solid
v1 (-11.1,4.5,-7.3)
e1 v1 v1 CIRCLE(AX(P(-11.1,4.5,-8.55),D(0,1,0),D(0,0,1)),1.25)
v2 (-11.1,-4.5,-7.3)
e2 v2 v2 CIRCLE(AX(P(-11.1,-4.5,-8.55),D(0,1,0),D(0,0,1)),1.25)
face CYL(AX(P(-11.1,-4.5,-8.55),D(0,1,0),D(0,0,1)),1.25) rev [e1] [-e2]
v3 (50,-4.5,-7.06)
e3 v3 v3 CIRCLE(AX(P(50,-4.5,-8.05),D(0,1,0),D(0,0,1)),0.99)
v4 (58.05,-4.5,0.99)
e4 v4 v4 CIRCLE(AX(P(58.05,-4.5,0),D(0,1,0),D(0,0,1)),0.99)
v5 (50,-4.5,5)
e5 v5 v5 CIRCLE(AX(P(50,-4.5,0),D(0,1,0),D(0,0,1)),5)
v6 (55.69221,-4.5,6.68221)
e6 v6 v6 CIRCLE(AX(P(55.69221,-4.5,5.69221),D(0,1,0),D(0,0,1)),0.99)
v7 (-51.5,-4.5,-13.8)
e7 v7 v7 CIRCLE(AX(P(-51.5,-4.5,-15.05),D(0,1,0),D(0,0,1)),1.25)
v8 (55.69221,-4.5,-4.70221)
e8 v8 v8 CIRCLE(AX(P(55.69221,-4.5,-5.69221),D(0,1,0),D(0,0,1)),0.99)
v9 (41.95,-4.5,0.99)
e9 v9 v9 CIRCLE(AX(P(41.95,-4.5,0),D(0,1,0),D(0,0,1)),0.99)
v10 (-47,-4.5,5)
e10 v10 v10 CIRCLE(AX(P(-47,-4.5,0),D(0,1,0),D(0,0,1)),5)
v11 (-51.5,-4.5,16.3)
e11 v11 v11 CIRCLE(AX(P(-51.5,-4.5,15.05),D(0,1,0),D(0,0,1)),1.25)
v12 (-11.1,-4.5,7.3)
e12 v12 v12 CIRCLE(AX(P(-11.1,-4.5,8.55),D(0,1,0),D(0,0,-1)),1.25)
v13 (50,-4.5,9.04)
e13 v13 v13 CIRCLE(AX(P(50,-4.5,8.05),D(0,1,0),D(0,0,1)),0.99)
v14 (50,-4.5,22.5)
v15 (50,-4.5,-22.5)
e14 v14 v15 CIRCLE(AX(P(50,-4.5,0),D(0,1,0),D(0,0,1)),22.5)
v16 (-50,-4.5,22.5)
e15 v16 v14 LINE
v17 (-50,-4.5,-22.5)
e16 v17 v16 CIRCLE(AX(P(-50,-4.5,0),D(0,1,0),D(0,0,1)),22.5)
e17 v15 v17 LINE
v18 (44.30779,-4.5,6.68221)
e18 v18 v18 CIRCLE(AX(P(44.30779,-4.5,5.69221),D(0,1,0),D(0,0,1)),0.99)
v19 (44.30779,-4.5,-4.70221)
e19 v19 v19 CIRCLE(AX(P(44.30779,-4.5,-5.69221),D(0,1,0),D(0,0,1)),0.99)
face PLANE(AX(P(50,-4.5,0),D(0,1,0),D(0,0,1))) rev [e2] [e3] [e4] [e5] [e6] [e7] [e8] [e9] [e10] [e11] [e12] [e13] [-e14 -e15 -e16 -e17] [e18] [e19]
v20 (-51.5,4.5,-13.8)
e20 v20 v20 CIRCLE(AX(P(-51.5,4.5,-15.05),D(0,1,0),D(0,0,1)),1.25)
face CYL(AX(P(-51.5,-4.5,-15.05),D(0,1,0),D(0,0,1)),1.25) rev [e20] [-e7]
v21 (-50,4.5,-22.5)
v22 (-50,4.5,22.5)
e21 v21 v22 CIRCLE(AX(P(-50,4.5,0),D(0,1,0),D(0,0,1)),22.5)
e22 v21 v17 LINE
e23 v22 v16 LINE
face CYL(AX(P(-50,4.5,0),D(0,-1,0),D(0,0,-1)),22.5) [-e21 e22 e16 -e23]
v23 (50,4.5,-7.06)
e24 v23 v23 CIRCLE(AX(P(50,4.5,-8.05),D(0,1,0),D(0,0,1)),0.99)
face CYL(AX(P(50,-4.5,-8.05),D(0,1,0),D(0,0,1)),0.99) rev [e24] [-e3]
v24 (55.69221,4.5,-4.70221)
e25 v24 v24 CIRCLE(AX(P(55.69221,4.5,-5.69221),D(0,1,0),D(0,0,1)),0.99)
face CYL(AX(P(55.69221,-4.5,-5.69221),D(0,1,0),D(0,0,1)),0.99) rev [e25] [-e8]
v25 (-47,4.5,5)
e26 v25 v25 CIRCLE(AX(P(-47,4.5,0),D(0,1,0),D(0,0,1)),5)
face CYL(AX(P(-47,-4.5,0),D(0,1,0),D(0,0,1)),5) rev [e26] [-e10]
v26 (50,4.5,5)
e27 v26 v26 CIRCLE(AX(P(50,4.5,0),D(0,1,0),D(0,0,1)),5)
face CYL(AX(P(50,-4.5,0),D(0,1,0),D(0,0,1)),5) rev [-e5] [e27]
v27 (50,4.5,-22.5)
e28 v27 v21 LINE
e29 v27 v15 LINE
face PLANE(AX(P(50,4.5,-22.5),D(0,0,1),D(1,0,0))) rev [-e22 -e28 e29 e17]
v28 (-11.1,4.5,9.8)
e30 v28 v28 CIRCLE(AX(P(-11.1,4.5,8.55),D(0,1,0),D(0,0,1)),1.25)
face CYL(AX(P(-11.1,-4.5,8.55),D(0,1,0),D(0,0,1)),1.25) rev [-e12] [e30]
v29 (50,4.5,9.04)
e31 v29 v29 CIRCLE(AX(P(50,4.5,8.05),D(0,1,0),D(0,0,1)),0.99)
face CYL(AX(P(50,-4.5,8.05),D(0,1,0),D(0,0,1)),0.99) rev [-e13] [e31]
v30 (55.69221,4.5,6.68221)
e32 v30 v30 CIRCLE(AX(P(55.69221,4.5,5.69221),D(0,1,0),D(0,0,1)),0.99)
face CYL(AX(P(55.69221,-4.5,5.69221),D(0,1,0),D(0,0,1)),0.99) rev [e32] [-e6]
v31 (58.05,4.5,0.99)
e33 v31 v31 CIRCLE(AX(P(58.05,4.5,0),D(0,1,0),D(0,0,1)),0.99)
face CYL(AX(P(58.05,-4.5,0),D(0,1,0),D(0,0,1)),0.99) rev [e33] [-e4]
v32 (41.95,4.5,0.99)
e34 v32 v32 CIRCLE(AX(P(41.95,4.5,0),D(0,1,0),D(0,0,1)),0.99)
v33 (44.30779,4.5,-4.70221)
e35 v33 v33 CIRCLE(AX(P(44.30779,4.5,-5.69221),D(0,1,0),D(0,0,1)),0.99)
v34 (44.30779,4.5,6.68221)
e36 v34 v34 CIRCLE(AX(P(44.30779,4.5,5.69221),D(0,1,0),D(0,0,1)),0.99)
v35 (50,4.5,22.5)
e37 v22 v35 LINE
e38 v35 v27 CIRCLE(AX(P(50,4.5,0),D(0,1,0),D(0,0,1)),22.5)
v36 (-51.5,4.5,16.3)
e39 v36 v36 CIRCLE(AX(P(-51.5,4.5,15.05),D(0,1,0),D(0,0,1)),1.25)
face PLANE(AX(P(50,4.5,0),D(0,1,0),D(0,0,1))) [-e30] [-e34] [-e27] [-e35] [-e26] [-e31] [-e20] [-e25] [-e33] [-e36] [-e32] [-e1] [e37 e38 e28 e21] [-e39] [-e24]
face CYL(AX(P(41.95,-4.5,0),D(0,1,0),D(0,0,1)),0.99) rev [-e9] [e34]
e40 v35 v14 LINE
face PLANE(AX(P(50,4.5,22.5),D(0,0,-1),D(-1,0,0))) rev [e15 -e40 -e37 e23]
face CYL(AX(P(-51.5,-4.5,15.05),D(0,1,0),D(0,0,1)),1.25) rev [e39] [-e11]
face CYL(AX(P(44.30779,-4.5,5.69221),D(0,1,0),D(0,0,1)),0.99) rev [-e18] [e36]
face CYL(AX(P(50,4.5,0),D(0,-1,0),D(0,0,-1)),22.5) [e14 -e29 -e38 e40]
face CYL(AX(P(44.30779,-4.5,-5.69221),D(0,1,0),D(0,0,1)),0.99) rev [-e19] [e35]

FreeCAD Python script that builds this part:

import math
import FreeCAD as App
import Part
import Sketcher
Q = App.Units.Quantity

doc = App.newDocument("Part")
params = doc.addObject("Spreadsheet::Sheet", "Params")
for row, (alias, value) in enumerate([
    ("sketch1_radius", "22.5 mm"),
    ("sketch1_width", "100 mm"),
    ("pad1_length", "9 mm"),
    ("sketch2_diameter", "1.98 mm"),
    ("sketch3_diameter", "10 mm"),
    ("sketch4_diameter", "10 mm"),
    ("sketch4_diameter2", "2.5 mm"),
], start=1):
    params.set(f"A{row}", alias)
    params.set(f"B{row}", "=" + value)
    params.setAlias(f"B{row}", alias)

body = doc.addObject("PartDesign::Body", "Body")

# Sketch on XZ plane
sketch1 = body.newObject("Sketcher::SketchObject", "Sketch")
sketch1.AttachmentSupport = (doc.getObject("XZ_Plane"), [""])
sketch1.MapMode = "FlatFace"
sketch1.addGeometry(Part.LineSegment(App.Vector(-50, 22, 0), App.Vector(50, 22, 0)), False)
sketch1.addGeometry(Part.ArcOfCircle(Part.Circle(App.Vector(50, 0, 0), App.Vector(0, 0, 1), 22), math.radians(-90), math.radians(90)), False)
sketch1.addGeometry(Part.LineSegment(App.Vector(50, -22, 0), App.Vector(-50, -22, 0)), False)
sketch1.addGeometry(Part.ArcOfCircle(Part.Circle(App.Vector(-50, 0, 0), App.Vector(0, 0, 1), 22), math.radians(90), math.radians(270)), False)
sketch1.addConstraint(Sketcher.Constraint("Tangent", 0, 2, 1, 2))
sketch1.addConstraint(Sketcher.Constraint("Tangent", 1, 1, 2, 1))
sketch1.addConstraint(Sketcher.Constraint("Tangent", 2, 2, 3, 2))
sketch1.addConstraint(Sketcher.Constraint("Tangent", 3, 1, 0, 1))
sketch1.addConstraint(Sketcher.Constraint("Horizontal", 0))
sketch1.addConstraint(Sketcher.Constraint("Horizontal", 2))
sketch1.addConstraint(Sketcher.Constraint("Symmetric", 1, 3, 3, 3, -1, 1))
sketch1.addConstraint(Sketcher.Constraint("Radius", 1, Q("22.5 mm")))
sketch1.addConstraint(Sketcher.Constraint("DistanceX", 0, 1, 0, 2, Q("100 mm")))
sketch1.setExpression("Constraints[7]", "Params.sketch1_radius")
sketch1.setExpression("Constraints[8]", "Params.sketch1_width")
pad1 = body.newObject("PartDesign::Pad", "Pad")
pad1.Profile = sketch1
pad1.setExpression("Length", "Params.pad1_length")
pad1.Midplane = True

# Sketch on XZ plane
sketch2 = body.newObject("Sketcher::SketchObject", "Sketch001")
sketch2.AttachmentSupport = (doc.getObject("XZ_Plane"), [""])
sketch2.MapMode = "FlatFace"
sketch2.AttachmentOffset = App.Placement(App.Vector(0, 0, -4.5), App.Rotation())
sketch2.addGeometry(Part.Circle(App.Vector(42, 0, 0), App.Vector(0, 0, 1), 1), False)
sketch2.addGeometry(Part.Circle(App.Vector(44.3, -5.7, 0), App.Vector(0, 0, 1), 1), False)
sketch2.addGeometry(Part.Circle(App.Vector(50, -8.1, 0), App.Vector(0, 0, 1), 1), False)
sketch2.addGeometry(Part.Circle(App.Vector(55.7, -5.7, 0), App.Vector(0, 0, 1), 1), False)
sketch2.addGeometry(Part.Circle(App.Vector(58, 0, 0), App.Vector(0, 0, 1), 1), False)
sketch2.addGeometry(Part.Circle(App.Vector(55.7, 5.7, 0), App.Vector(0, 0, 1), 1), False)
sketch2.addGeometry(Part.Circle(App.Vector(50, 8.1, 0), App.Vector(0, 0, 1), 1), False)
sketch2.addGeometry(Part.Circle(App.Vector(44.3, 5.7, 0), App.Vector(0, 0, 1), 1), False)
sketch2.addConstraint(Sketcher.Constraint("Equal", 0, 1))
sketch2.addConstraint(Sketcher.Constraint("Equal", 1, 2))
sketch2.addConstraint(Sketcher.Constraint("Equal", 2, 3))
sketch2.addConstraint(Sketcher.Constraint("Equal", 3, 4))
sketch2.addConstraint(Sketcher.Constraint("Equal", 4, 5))
sketch2.addConstraint(Sketcher.Constraint("Equal", 5, 6))
sketch2.addConstraint(Sketcher.Constraint("Equal", 6, 7))
sketch2.addConstraint(Sketcher.Constraint("Symmetric", 3, 3, 5, 3, -1))
sketch2.addConstraint(Sketcher.Constraint("Symmetric", 2, 3, 6, 3, -1))
sketch2.addConstraint(Sketcher.Constraint("Symmetric", 1, 3, 7, 3, -1))
sketch2.addConstraint(Sketcher.Constraint("PointOnObject", 0, 3, -1))
sketch2.addConstraint(Sketcher.Constraint("PointOnObject", 4, 3, -1))
sketch2.addConstraint(Sketcher.Constraint("Horizontal", 1, 3, 3, 3))
sketch2.addConstraint(Sketcher.Constraint("Diameter", 0, Q("1.98 mm")))
sketch2.addConstraint(Sketcher.Constraint("DistanceX", -1, 1, 2, 3, Q("50 mm")))
sketch2.addConstraint(Sketcher.Constraint("DistanceX", 0, 3, 4, 3, Q("16.1 mm")))
sketch2.addConstraint(Sketcher.Constraint("DistanceX", -1, 1, 0, 3, Q("41.95 mm")))
sketch2.addConstraint(Sketcher.Constraint("DistanceY", 2, 3, -1, 1, Q("8.05 mm")))
sketch2.addConstraint(Sketcher.Constraint("DistanceX", -1, 1, 1, 3, Q("44.30779 mm")))
sketch2.addConstraint(Sketcher.Constraint("DistanceY", 1, 3, -1, 1, Q("5.69221 mm")))
sketch2.addConstraint(Sketcher.Constraint("DistanceX", -1, 1, 3, 3, Q("55.69221 mm")))
sketch2.setExpression("Constraints[13]", "Params.sketch2_diameter")
pocket1 = body.newObject("PartDesign::Pocket", "Pocket")
pocket1.Profile = sketch2
pocket1.Type = "ThroughAll"
pocket1.Midplane = True

# Sketch on XZ plane
sketch3 = body.newObject("Sketcher::SketchObject", "Sketch002")
sketch3.AttachmentSupport = (doc.getObject("XZ_Plane"), [""])
sketch3.MapMode = "FlatFace"
sketch3.AttachmentOffset = App.Placement(App.Vector(0, 0, -4.5), App.Rotation())
sketch3.addGeometry(Part.Circle(App.Vector(50, 0, 0), App.Vector(0, 0, 1), 5), False)
sketch3.addConstraint(Sketcher.Constraint("PointOnObject", 0, 3, -1))
sketch3.addConstraint(Sketcher.Constraint("Diameter", 0, Q("10 mm")))
sketch3.addConstraint(Sketcher.Constraint("DistanceX", -1, 1, 0, 3, Q("50 mm")))
sketch3.setExpression("Constraints[1]", "Params.sketch3_diameter")
pocket2 = body.newObject("PartDesign::Pocket", "Pocket001")
pocket2.Profile = sketch3
pocket2.Type = "ThroughAll"
pocket2.Reversed = True

# Sketch on XZ plane
sketch4 = body.newObject("Sketcher::SketchObject", "Sketch003")
sketch4.AttachmentSupport = (doc.getObject("XZ_Plane"), [""])
sketch4.MapMode = "FlatFace"
sketch4.AttachmentOffset = App.Placement(App.Vector(0, 0, -4.5), App.Rotation())
sketch4.addGeometry(Part.Circle(App.Vector(-51.5, 15.1, 0), App.Vector(0, 0, 1), 1.2), False)
sketch4.addGeometry(Part.Circle(App.Vector(-51.5, -15.1, 0), App.Vector(0, 0, 1), 1.2), False)
sketch4.addGeometry(Part.Circle(App.Vector(-11.1, -8.6, 0), App.Vector(0, 0, 1), 1.2), False)
sketch4.addGeometry(Part.Circle(App.Vector(-11.1, 8.6, 0), App.Vector(0, 0, 1), 1.2), False)
sketch4.addGeometry(Part.Circle(App.Vector(-47, 0, 0), App.Vector(0, 0, 1), 5), False)
sketch4.addConstraint(Sketcher.Constraint("Equal", 0, 1))
sketch4.addConstraint(Sketcher.Constraint("Equal", 1, 2))
sketch4.addConstraint(Sketcher.Constraint("Equal", 2, 3))
sketch4.addConstraint(Sketcher.Constraint("Symmetric", 0, 3, 1, 3, -1))
sketch4.addConstraint(Sketcher.Constraint("Symmetric", 2, 3, 3, 3, -1))
sketch4.addConstraint(Sketcher.Constraint("PointOnObject", 4, 3, -1))
sketch4.addConstraint(Sketcher.Constraint("Diameter", 4, Q("10 mm")))
sketch4.addConstraint(Sketcher.Constraint("Diameter", 0, Q("2.5 mm")))
sketch4.addConstraint(Sketcher.Constraint("DistanceX", 4, 3, -1, 1, Q("47 mm")))
sketch4.addConstraint(Sketcher.Constraint("DistanceX", 0, 3, -1, 1, Q("51.5 mm")))
sketch4.addConstraint(Sketcher.Constraint("DistanceX", 2, 3, -1, 1, Q("11.1 mm")))
sketch4.addConstraint(Sketcher.Constraint("DistanceY", 1, 3, 0, 3, Q("30.1 mm")))
sketch4.addConstraint(Sketcher.Constraint("DistanceY", 1, 3, 2, 3, Q("6.5 mm")))
sketch4.setExpression("Constraints[6]", "Params.sketch4_diameter")
sketch4.setExpression("Constraints[7]", "Params.sketch4_diameter2")
pocket3 = body.newObject("PartDesign::Pocket", "Pocket002")
pocket3.Profile = sketch4
pocket3.Type = "ThroughAll"
pocket3.Midplane = True

doc.recompute()
